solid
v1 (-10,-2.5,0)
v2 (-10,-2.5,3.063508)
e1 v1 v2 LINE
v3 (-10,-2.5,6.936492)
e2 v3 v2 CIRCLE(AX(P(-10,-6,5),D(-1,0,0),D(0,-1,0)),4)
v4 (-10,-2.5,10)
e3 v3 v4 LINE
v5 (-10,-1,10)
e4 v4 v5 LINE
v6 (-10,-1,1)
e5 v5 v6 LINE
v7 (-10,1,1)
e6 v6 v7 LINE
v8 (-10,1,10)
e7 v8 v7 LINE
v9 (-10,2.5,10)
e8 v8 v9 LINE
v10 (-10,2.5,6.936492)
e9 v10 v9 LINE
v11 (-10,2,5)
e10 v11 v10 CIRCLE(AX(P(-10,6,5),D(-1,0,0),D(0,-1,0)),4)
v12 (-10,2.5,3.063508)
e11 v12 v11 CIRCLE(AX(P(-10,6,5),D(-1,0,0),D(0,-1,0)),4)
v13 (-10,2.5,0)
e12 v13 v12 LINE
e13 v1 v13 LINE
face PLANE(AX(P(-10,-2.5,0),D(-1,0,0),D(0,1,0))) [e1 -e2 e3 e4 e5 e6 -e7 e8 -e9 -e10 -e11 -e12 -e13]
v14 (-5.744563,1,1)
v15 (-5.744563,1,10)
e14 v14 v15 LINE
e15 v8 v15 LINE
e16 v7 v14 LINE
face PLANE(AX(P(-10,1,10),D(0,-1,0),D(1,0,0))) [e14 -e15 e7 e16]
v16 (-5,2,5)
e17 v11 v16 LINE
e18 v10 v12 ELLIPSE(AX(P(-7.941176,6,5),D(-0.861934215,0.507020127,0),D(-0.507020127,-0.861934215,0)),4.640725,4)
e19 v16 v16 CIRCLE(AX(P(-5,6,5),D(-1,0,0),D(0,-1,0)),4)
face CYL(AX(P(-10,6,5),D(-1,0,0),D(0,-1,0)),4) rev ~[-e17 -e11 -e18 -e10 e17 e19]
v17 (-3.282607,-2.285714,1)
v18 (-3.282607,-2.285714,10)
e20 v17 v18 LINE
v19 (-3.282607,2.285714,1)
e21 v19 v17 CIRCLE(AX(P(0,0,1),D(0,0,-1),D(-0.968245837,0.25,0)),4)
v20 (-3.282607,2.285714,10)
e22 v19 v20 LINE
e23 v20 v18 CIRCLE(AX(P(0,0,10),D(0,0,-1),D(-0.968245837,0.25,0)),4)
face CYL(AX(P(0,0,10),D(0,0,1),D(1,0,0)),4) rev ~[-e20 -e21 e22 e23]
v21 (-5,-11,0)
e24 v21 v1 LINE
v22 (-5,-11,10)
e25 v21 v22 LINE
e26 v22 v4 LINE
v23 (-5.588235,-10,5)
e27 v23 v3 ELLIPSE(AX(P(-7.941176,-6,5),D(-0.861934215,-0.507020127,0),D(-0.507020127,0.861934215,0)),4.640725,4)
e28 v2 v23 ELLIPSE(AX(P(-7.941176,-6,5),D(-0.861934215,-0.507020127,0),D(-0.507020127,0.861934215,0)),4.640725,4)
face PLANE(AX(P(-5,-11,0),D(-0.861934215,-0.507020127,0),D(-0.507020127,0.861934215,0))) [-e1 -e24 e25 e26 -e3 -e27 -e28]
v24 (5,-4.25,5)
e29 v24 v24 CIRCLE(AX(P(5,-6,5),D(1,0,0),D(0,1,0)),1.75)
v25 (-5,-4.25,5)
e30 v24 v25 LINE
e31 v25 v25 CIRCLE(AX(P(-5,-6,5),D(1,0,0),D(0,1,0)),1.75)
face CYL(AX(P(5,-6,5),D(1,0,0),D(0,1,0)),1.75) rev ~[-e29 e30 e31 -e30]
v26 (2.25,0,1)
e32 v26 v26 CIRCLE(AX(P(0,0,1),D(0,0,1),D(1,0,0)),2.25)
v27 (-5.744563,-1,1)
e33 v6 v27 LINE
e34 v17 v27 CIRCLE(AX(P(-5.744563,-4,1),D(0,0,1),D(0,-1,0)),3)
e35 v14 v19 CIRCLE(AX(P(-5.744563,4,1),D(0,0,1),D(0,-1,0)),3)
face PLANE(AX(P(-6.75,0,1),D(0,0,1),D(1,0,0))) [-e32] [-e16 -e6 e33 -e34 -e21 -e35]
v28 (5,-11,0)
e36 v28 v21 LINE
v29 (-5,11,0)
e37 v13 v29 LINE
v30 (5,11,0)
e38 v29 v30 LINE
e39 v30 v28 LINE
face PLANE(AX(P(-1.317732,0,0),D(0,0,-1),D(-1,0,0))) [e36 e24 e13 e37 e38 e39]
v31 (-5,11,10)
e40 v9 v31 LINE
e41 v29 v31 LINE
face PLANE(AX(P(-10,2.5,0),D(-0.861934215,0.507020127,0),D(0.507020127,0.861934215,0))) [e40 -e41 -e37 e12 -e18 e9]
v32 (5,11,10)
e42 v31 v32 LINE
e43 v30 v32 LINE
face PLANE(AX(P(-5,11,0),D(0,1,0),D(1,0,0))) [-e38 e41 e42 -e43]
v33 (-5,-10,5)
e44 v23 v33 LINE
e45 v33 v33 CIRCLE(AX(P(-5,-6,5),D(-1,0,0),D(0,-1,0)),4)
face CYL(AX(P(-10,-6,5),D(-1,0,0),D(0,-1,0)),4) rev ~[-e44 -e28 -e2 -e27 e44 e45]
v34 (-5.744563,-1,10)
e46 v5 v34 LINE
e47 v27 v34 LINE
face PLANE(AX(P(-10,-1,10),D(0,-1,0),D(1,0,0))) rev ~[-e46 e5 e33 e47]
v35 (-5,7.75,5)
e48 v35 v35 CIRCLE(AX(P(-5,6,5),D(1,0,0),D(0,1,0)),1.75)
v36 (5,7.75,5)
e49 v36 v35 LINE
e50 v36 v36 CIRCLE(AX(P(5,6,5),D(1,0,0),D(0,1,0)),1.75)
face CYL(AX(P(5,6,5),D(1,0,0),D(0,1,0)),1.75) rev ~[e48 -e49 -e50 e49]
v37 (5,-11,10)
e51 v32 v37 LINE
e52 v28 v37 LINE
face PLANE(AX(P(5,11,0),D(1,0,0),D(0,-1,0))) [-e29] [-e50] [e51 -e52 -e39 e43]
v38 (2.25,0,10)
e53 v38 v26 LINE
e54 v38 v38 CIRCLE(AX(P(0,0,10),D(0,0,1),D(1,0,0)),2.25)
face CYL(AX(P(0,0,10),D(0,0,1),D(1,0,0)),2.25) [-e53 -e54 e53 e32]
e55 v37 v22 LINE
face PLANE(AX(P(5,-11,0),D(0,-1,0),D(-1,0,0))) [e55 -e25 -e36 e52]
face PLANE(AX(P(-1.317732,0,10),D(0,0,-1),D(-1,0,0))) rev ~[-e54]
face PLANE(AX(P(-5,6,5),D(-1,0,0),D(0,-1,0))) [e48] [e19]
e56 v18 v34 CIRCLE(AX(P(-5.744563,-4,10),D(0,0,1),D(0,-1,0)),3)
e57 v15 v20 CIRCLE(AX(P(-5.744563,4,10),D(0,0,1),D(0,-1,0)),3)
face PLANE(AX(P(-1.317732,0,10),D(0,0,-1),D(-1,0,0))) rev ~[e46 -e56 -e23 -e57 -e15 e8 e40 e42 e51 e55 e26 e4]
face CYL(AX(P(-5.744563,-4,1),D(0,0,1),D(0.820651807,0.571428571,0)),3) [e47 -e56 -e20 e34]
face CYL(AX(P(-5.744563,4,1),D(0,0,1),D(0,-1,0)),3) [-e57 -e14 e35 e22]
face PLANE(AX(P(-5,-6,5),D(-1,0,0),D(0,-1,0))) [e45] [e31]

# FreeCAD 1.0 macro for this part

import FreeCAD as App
import Part
import Sketcher
from FreeCAD import Vector
Q = App.Units.Quantity


def edges_at(feature, points):
    """Names of the edges that pass closest to the given points."""
    edges = feature.Shape.Edges
    near = lambda p: min(range(len(edges)), key=lambda i: edges[i].distToShape(Part.Vertex(*p))[0])
    return sorted({f"Edge{near(p) + 1}" for p in points})


def add_polygon(sketch, points):
    """Adds a closed chain of lines whose ends are joined by coincident constraints."""
    first, n = sketch.GeometryCount, len(points)
    for a, b in zip(points, points[1:] + points[:1]):
        sketch.addGeometry(Part.LineSegment(App.Vector(*a, 0), App.Vector(*b, 0)), False)
    for i in range(n):
        sketch.addConstraint(Sketcher.Constraint("Coincident", first + i, 2, first + (i + 1) % n, 1))

doc = App.newDocument("Part")
body = doc.addObject("PartDesign::Body", "Body")

# Sketch on XY plane
sketch1 = doc.addObject("Sketcher::SketchObject", "Sketch")
body.addObject(sketch1)
sketch1.AttachmentSupport = (doc.XY_Plane, [""])
sketch1.MapMode = "FlatFace"
add_polygon(sketch1, [(5, 11), (-5, 11), (-10, 2), (-10, -2), (-5, -11), (5, -11)])  # lines 0-5
sketch1.addConstraint([
    Sketcher.Constraint("Horizontal", 0),
    Sketcher.Constraint("Vertical", 2),
    Sketcher.Constraint("Horizontal", 4),
    Sketcher.Constraint("Vertical", 5),
    Sketcher.Constraint("Symmetric", 0, 2, 4, 2, -1, 1),
    Sketcher.Constraint("Vertical", 0, 2, 3, 2),
    Sketcher.Constraint("Equal", 1, 3),
    Sketcher.Constraint("DistanceX", 0, 2, 0, 1, Q("10 mm")),
    Sketcher.Constraint("DistanceY", 2, 2, 2, 1, Q("5 mm")),
    Sketcher.Constraint("DistanceY", 5, 1, 5, 2, Q("22 mm")),
    Sketcher.Constraint("DistanceX", 1, 2, -1, 1, Q("10 mm")),
])
pad1 = doc.addObject("PartDesign::Pad", "Pad")
body.addObject(pad1)
pad1.Profile = sketch1
pad1.Length = 10

# Sketch on YZ plane
sketch2 = doc.addObject("Sketcher::SketchObject", "Sketch001")
body.addObject(sketch2)
sketch2.AttachmentSupport = (doc.YZ_Plane, [""])
sketch2.MapMode = "FlatFace"
sketch2.AttachmentOffset = App.Placement(Vector(0, 0, 5), App.Rotation())
sketch2.addGeometry([
    Part.Circle(Vector(-6, 5, 0), Vector(0, 0, 1), 1.8),
    Part.Circle(Vector(6, 5, 0), Vector(0, 0, 1), 1.8),
], False)
sketch2.addConstraint([
    Sketcher.Constraint("Equal", 0, 1),
    Sketcher.Constraint("Symmetric", 0, 3, 1, 3, -2),
    Sketcher.Constraint("Diameter", 0, Q("3.5 mm")),
    Sketcher.Constraint("DistanceX", 0, 3, -1, 1, Q("6 mm")),
    Sketcher.Constraint("DistanceY", -1, 1, 0, 3, Q("5 mm")),
])
pocket1 = doc.addObject("PartDesign::Pocket", "Pocket")
body.addObject(pocket1)
pocket1.Profile = sketch2
pocket1.Type = "ThroughAll"

# Sketch on YZ plane
sketch3 = doc.addObject("Sketcher::SketchObject", "Sketch002")
body.addObject(sketch3)
sketch3.AttachmentSupport = (doc.YZ_Plane, [""])
sketch3.MapMode = "FlatFace"
sketch3.AttachmentOffset = App.Placement(Vector(0, 0, -10), App.Rotation())
sketch3.addGeometry([
    Part.Circle(Vector(6, 5, 0), Vector(0, 0, 1), 4),
    Part.Circle(Vector(-6, 5, 0), Vector(0, 0, 1), 4),
], False)
sketch3.addConstraint([
    Sketcher.Constraint("Equal", 0, 1),
    Sketcher.Constraint("Symmetric", 0, 3, 1, 3, -2),
    Sketcher.Constraint("Diameter", 0, Q("8 mm")),
    Sketcher.Constraint("DistanceX", -1, 1, 0, 3, Q("6 mm")),
    Sketcher.Constraint("DistanceY", -1, 1, 0, 3, Q("5 mm")),
])
pocket2 = doc.addObject("PartDesign::Pocket", "Pocket001")
body.addObject(pocket2)
pocket2.Profile = sketch3
pocket2.Length = 5
pocket2.Reversed = True

# Sketch on XY plane
sketch4 = doc.addObject("Sketcher::SketchObject", "Sketch003")
body.addObject(sketch4)
sketch4.AttachmentSupport = (doc.XY_Plane, [""])
sketch4.MapMode = "FlatFace"
sketch4.AttachmentOffset = App.Placement(Vector(0, 0, 10), App.Rotation())
sketch4.addGeometry([
    Part.Circle(Vector(0, 0, 0), Vector(0, 0, 1), 4),
    Part.Circle(Vector(0, 0, 0), Vector(0, 0, 1), 2.2),
], False)
sketch4.addConstraint([
    Sketcher.Constraint("Coincident", 0, 3, -1, 1),
    Sketcher.Constraint("Coincident", 1, 3, -1, 1),
    Sketcher.Constraint("Diameter", 0, Q("8 mm")),
    Sketcher.Constraint("Diameter", 1, Q("4.5 mm")),
])
pocket3 = doc.addObject("PartDesign::Pocket", "Pocket002")
body.addObject(pocket3)
pocket3.Profile = sketch4
pocket3.Length = 9

# Sketch on XY plane
sketch5 = doc.addObject("Sketcher::SketchObject", "Sketch004")
body.addObject(sketch5)
sketch5.AttachmentSupport = (doc.XY_Plane, [""])
sketch5.MapMode = "FlatFace"
sketch5.AttachmentOffset = App.Placement(Vector(0, 0, 10), App.Rotation())
add_polygon(sketch5, [(-10, 1), (-10, -1), (-3.5, -1), (-3.5, 1)])  # lines 0-3
sketch5.addConstraint([
    Sketcher.Constraint("Vertical", 0),
    Sketcher.Constraint("Horizontal", 1),
    Sketcher.Constraint("Vertical", 2),
    Sketcher.Constraint("Horizontal", 3),
    Sketcher.Constraint("DistanceY", 0, 2, 0, 1, Q("2 mm")),
    Sketcher.Constraint("DistanceX", 1, 1, 1, 2, Q("6.5 mm")),
    Sketcher.Constraint("DistanceX", 0, 2, -1, 1, Q("10 mm")),
    Sketcher.Constraint("DistanceY", 0, 2, -1, 1, Q("1 mm")),
])
pocket4 = doc.addObject("PartDesign::Pocket", "Pocket003")
body.addObject(pocket4)
pocket4.Profile = sketch5
pocket4.Length = 9
doc.recompute()

fillet = doc.addObject("PartDesign::Fillet", "Fillet")
body.addObject(fillet)
fillet.Base = (pocket4, edges_at(pocket4, [(-3.873, 1, 5.5)]))
fillet.Radius = 3
doc.recompute()

fillet2 = doc.addObject("PartDesign::Fillet", "Fillet001")
body.addObject(fillet2)
fillet2.Base = (fillet, edges_at(fillet, [(-3.873, -1, 5.5)]))
fillet2.Radius = 3

doc.recompute()
